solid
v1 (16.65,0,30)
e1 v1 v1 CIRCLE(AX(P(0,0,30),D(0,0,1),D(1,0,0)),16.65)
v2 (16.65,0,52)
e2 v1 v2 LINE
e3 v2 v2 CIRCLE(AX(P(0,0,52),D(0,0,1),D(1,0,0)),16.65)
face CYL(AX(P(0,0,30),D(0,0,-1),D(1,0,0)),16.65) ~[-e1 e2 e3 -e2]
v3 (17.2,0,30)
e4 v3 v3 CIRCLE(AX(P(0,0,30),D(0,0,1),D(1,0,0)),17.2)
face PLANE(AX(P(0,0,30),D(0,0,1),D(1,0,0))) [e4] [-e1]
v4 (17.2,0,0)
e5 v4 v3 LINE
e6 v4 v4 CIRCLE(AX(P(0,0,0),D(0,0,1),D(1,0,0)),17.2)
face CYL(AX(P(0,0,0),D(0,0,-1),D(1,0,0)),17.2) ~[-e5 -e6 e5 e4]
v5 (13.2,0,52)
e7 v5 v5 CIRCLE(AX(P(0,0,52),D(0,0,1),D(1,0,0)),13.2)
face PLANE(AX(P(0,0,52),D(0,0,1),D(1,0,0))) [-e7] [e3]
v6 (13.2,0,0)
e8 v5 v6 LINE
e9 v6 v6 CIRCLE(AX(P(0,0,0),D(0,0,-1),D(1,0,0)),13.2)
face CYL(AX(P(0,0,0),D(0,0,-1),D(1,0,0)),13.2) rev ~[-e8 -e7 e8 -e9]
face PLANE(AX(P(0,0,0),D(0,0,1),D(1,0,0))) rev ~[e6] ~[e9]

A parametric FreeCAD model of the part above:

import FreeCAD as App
import Part
import Sketcher
from FreeCAD import Vector
Q = App.Units.Quantity

doc = App.newDocument("Part")
body = doc.addObject("PartDesign::Body", "Body")

# Sketch on XY plane
sketch1 = doc.addObject("Sketcher::SketchObject", "Sketch")
body.addObject(sketch1)
sketch1.AttachmentSupport = (doc.XY_Plane, [""])
sketch1.MapMode = "FlatFace"
sketch1.addGeometry(Part.Circle(Vector(0, 0, 0), Vector(0, 0, 1), 17), False)
sketch1.addConstraint([
    Sketcher.Constraint("Coincident", 0, 3, -1, 1),
    Sketcher.Constraint("Diameter", 0, Q("34.4 mm")),
])
pad1 = doc.addObject("PartDesign::Pad", "Pad")
body.addObject(pad1)
pad1.Profile = sketch1
pad1.Length = 30

# Sketch on XY plane
sketch2 = doc.addObject("Sketcher::SketchObject", "Sketch001")
body.addObject(sketch2)
sketch2.AttachmentSupport = (doc.XY_Plane, [""])
sketch2.MapMode = "FlatFace"
sketch2.AttachmentOffset = App.Placement(Vector(0, 0, 30), App.Rotation())
sketch2.addGeometry(Part.Circle(Vector(0, 0, 0), Vector(0, 0, 1), 17), False)
sketch2.addConstraint([
    Sketcher.Constraint("Coincident", 0, 3, -1, 1),
    Sketcher.Constraint("Diameter", 0, Q("33.3 mm")),
])
pad2 = doc.addObject("PartDesign::Pad", "Pad001")
body.addObject(pad2)
pad2.Profile = sketch2
pad2.Length = 22

# Sketch on XY plane
sketch3 = doc.addObject("Sketcher::SketchObject", "Sketch002")
body.addObject(sketch3)
sketch3.AttachmentSupport = (doc.XY_Plane, [""])
sketch3.MapMode = "FlatFace"
sketch3.AttachmentOffset = App.Placement(Vector(0, 0, 52), App.Rotation())
sketch3.addGeometry(Part.Circle(Vector(0, 0, 0), Vector(0, 0, 1), 13), False)
sketch3.addConstraint([
    Sketcher.Constraint("Coincident", 0, 3, -1, 1),
    Sketcher.Constraint("Diameter", 0, Q("26.4 mm")),
])
pocket1 = doc.addObject("PartDesign::Pocket", "Pocket")
body.addObject(pocket1)
pocket1.Profile = sketch3
pocket1.Length = 25

# Sketch on XY plane
sketch4 = doc.addObject("Sketcher::SketchObject", "Sketch003")
body.addObject(sketch4)
sketch4.AttachmentSupport = (doc.XY_Plane, [""])
sketch4.MapMode = "FlatFace"
sketch4.addGeometry(Part.Circle(Vector(0, 0, 0), Vector(0, 0, 1), 13), False)
sketch4.addConstraint([
    Sketcher.Constraint("Coincident", 0, 3, -1, 1),
    Sketcher.Constraint("Diameter", 0, Q("26.4 mm")),
])
pocket2 = doc.addObject("PartDesign::Pocket", "Pocket001")
body.addObject(pocket2)
pocket2.Profile = sketch4
pocket2.Length = 30
pocket2.Reversed = True

doc.recompute()
